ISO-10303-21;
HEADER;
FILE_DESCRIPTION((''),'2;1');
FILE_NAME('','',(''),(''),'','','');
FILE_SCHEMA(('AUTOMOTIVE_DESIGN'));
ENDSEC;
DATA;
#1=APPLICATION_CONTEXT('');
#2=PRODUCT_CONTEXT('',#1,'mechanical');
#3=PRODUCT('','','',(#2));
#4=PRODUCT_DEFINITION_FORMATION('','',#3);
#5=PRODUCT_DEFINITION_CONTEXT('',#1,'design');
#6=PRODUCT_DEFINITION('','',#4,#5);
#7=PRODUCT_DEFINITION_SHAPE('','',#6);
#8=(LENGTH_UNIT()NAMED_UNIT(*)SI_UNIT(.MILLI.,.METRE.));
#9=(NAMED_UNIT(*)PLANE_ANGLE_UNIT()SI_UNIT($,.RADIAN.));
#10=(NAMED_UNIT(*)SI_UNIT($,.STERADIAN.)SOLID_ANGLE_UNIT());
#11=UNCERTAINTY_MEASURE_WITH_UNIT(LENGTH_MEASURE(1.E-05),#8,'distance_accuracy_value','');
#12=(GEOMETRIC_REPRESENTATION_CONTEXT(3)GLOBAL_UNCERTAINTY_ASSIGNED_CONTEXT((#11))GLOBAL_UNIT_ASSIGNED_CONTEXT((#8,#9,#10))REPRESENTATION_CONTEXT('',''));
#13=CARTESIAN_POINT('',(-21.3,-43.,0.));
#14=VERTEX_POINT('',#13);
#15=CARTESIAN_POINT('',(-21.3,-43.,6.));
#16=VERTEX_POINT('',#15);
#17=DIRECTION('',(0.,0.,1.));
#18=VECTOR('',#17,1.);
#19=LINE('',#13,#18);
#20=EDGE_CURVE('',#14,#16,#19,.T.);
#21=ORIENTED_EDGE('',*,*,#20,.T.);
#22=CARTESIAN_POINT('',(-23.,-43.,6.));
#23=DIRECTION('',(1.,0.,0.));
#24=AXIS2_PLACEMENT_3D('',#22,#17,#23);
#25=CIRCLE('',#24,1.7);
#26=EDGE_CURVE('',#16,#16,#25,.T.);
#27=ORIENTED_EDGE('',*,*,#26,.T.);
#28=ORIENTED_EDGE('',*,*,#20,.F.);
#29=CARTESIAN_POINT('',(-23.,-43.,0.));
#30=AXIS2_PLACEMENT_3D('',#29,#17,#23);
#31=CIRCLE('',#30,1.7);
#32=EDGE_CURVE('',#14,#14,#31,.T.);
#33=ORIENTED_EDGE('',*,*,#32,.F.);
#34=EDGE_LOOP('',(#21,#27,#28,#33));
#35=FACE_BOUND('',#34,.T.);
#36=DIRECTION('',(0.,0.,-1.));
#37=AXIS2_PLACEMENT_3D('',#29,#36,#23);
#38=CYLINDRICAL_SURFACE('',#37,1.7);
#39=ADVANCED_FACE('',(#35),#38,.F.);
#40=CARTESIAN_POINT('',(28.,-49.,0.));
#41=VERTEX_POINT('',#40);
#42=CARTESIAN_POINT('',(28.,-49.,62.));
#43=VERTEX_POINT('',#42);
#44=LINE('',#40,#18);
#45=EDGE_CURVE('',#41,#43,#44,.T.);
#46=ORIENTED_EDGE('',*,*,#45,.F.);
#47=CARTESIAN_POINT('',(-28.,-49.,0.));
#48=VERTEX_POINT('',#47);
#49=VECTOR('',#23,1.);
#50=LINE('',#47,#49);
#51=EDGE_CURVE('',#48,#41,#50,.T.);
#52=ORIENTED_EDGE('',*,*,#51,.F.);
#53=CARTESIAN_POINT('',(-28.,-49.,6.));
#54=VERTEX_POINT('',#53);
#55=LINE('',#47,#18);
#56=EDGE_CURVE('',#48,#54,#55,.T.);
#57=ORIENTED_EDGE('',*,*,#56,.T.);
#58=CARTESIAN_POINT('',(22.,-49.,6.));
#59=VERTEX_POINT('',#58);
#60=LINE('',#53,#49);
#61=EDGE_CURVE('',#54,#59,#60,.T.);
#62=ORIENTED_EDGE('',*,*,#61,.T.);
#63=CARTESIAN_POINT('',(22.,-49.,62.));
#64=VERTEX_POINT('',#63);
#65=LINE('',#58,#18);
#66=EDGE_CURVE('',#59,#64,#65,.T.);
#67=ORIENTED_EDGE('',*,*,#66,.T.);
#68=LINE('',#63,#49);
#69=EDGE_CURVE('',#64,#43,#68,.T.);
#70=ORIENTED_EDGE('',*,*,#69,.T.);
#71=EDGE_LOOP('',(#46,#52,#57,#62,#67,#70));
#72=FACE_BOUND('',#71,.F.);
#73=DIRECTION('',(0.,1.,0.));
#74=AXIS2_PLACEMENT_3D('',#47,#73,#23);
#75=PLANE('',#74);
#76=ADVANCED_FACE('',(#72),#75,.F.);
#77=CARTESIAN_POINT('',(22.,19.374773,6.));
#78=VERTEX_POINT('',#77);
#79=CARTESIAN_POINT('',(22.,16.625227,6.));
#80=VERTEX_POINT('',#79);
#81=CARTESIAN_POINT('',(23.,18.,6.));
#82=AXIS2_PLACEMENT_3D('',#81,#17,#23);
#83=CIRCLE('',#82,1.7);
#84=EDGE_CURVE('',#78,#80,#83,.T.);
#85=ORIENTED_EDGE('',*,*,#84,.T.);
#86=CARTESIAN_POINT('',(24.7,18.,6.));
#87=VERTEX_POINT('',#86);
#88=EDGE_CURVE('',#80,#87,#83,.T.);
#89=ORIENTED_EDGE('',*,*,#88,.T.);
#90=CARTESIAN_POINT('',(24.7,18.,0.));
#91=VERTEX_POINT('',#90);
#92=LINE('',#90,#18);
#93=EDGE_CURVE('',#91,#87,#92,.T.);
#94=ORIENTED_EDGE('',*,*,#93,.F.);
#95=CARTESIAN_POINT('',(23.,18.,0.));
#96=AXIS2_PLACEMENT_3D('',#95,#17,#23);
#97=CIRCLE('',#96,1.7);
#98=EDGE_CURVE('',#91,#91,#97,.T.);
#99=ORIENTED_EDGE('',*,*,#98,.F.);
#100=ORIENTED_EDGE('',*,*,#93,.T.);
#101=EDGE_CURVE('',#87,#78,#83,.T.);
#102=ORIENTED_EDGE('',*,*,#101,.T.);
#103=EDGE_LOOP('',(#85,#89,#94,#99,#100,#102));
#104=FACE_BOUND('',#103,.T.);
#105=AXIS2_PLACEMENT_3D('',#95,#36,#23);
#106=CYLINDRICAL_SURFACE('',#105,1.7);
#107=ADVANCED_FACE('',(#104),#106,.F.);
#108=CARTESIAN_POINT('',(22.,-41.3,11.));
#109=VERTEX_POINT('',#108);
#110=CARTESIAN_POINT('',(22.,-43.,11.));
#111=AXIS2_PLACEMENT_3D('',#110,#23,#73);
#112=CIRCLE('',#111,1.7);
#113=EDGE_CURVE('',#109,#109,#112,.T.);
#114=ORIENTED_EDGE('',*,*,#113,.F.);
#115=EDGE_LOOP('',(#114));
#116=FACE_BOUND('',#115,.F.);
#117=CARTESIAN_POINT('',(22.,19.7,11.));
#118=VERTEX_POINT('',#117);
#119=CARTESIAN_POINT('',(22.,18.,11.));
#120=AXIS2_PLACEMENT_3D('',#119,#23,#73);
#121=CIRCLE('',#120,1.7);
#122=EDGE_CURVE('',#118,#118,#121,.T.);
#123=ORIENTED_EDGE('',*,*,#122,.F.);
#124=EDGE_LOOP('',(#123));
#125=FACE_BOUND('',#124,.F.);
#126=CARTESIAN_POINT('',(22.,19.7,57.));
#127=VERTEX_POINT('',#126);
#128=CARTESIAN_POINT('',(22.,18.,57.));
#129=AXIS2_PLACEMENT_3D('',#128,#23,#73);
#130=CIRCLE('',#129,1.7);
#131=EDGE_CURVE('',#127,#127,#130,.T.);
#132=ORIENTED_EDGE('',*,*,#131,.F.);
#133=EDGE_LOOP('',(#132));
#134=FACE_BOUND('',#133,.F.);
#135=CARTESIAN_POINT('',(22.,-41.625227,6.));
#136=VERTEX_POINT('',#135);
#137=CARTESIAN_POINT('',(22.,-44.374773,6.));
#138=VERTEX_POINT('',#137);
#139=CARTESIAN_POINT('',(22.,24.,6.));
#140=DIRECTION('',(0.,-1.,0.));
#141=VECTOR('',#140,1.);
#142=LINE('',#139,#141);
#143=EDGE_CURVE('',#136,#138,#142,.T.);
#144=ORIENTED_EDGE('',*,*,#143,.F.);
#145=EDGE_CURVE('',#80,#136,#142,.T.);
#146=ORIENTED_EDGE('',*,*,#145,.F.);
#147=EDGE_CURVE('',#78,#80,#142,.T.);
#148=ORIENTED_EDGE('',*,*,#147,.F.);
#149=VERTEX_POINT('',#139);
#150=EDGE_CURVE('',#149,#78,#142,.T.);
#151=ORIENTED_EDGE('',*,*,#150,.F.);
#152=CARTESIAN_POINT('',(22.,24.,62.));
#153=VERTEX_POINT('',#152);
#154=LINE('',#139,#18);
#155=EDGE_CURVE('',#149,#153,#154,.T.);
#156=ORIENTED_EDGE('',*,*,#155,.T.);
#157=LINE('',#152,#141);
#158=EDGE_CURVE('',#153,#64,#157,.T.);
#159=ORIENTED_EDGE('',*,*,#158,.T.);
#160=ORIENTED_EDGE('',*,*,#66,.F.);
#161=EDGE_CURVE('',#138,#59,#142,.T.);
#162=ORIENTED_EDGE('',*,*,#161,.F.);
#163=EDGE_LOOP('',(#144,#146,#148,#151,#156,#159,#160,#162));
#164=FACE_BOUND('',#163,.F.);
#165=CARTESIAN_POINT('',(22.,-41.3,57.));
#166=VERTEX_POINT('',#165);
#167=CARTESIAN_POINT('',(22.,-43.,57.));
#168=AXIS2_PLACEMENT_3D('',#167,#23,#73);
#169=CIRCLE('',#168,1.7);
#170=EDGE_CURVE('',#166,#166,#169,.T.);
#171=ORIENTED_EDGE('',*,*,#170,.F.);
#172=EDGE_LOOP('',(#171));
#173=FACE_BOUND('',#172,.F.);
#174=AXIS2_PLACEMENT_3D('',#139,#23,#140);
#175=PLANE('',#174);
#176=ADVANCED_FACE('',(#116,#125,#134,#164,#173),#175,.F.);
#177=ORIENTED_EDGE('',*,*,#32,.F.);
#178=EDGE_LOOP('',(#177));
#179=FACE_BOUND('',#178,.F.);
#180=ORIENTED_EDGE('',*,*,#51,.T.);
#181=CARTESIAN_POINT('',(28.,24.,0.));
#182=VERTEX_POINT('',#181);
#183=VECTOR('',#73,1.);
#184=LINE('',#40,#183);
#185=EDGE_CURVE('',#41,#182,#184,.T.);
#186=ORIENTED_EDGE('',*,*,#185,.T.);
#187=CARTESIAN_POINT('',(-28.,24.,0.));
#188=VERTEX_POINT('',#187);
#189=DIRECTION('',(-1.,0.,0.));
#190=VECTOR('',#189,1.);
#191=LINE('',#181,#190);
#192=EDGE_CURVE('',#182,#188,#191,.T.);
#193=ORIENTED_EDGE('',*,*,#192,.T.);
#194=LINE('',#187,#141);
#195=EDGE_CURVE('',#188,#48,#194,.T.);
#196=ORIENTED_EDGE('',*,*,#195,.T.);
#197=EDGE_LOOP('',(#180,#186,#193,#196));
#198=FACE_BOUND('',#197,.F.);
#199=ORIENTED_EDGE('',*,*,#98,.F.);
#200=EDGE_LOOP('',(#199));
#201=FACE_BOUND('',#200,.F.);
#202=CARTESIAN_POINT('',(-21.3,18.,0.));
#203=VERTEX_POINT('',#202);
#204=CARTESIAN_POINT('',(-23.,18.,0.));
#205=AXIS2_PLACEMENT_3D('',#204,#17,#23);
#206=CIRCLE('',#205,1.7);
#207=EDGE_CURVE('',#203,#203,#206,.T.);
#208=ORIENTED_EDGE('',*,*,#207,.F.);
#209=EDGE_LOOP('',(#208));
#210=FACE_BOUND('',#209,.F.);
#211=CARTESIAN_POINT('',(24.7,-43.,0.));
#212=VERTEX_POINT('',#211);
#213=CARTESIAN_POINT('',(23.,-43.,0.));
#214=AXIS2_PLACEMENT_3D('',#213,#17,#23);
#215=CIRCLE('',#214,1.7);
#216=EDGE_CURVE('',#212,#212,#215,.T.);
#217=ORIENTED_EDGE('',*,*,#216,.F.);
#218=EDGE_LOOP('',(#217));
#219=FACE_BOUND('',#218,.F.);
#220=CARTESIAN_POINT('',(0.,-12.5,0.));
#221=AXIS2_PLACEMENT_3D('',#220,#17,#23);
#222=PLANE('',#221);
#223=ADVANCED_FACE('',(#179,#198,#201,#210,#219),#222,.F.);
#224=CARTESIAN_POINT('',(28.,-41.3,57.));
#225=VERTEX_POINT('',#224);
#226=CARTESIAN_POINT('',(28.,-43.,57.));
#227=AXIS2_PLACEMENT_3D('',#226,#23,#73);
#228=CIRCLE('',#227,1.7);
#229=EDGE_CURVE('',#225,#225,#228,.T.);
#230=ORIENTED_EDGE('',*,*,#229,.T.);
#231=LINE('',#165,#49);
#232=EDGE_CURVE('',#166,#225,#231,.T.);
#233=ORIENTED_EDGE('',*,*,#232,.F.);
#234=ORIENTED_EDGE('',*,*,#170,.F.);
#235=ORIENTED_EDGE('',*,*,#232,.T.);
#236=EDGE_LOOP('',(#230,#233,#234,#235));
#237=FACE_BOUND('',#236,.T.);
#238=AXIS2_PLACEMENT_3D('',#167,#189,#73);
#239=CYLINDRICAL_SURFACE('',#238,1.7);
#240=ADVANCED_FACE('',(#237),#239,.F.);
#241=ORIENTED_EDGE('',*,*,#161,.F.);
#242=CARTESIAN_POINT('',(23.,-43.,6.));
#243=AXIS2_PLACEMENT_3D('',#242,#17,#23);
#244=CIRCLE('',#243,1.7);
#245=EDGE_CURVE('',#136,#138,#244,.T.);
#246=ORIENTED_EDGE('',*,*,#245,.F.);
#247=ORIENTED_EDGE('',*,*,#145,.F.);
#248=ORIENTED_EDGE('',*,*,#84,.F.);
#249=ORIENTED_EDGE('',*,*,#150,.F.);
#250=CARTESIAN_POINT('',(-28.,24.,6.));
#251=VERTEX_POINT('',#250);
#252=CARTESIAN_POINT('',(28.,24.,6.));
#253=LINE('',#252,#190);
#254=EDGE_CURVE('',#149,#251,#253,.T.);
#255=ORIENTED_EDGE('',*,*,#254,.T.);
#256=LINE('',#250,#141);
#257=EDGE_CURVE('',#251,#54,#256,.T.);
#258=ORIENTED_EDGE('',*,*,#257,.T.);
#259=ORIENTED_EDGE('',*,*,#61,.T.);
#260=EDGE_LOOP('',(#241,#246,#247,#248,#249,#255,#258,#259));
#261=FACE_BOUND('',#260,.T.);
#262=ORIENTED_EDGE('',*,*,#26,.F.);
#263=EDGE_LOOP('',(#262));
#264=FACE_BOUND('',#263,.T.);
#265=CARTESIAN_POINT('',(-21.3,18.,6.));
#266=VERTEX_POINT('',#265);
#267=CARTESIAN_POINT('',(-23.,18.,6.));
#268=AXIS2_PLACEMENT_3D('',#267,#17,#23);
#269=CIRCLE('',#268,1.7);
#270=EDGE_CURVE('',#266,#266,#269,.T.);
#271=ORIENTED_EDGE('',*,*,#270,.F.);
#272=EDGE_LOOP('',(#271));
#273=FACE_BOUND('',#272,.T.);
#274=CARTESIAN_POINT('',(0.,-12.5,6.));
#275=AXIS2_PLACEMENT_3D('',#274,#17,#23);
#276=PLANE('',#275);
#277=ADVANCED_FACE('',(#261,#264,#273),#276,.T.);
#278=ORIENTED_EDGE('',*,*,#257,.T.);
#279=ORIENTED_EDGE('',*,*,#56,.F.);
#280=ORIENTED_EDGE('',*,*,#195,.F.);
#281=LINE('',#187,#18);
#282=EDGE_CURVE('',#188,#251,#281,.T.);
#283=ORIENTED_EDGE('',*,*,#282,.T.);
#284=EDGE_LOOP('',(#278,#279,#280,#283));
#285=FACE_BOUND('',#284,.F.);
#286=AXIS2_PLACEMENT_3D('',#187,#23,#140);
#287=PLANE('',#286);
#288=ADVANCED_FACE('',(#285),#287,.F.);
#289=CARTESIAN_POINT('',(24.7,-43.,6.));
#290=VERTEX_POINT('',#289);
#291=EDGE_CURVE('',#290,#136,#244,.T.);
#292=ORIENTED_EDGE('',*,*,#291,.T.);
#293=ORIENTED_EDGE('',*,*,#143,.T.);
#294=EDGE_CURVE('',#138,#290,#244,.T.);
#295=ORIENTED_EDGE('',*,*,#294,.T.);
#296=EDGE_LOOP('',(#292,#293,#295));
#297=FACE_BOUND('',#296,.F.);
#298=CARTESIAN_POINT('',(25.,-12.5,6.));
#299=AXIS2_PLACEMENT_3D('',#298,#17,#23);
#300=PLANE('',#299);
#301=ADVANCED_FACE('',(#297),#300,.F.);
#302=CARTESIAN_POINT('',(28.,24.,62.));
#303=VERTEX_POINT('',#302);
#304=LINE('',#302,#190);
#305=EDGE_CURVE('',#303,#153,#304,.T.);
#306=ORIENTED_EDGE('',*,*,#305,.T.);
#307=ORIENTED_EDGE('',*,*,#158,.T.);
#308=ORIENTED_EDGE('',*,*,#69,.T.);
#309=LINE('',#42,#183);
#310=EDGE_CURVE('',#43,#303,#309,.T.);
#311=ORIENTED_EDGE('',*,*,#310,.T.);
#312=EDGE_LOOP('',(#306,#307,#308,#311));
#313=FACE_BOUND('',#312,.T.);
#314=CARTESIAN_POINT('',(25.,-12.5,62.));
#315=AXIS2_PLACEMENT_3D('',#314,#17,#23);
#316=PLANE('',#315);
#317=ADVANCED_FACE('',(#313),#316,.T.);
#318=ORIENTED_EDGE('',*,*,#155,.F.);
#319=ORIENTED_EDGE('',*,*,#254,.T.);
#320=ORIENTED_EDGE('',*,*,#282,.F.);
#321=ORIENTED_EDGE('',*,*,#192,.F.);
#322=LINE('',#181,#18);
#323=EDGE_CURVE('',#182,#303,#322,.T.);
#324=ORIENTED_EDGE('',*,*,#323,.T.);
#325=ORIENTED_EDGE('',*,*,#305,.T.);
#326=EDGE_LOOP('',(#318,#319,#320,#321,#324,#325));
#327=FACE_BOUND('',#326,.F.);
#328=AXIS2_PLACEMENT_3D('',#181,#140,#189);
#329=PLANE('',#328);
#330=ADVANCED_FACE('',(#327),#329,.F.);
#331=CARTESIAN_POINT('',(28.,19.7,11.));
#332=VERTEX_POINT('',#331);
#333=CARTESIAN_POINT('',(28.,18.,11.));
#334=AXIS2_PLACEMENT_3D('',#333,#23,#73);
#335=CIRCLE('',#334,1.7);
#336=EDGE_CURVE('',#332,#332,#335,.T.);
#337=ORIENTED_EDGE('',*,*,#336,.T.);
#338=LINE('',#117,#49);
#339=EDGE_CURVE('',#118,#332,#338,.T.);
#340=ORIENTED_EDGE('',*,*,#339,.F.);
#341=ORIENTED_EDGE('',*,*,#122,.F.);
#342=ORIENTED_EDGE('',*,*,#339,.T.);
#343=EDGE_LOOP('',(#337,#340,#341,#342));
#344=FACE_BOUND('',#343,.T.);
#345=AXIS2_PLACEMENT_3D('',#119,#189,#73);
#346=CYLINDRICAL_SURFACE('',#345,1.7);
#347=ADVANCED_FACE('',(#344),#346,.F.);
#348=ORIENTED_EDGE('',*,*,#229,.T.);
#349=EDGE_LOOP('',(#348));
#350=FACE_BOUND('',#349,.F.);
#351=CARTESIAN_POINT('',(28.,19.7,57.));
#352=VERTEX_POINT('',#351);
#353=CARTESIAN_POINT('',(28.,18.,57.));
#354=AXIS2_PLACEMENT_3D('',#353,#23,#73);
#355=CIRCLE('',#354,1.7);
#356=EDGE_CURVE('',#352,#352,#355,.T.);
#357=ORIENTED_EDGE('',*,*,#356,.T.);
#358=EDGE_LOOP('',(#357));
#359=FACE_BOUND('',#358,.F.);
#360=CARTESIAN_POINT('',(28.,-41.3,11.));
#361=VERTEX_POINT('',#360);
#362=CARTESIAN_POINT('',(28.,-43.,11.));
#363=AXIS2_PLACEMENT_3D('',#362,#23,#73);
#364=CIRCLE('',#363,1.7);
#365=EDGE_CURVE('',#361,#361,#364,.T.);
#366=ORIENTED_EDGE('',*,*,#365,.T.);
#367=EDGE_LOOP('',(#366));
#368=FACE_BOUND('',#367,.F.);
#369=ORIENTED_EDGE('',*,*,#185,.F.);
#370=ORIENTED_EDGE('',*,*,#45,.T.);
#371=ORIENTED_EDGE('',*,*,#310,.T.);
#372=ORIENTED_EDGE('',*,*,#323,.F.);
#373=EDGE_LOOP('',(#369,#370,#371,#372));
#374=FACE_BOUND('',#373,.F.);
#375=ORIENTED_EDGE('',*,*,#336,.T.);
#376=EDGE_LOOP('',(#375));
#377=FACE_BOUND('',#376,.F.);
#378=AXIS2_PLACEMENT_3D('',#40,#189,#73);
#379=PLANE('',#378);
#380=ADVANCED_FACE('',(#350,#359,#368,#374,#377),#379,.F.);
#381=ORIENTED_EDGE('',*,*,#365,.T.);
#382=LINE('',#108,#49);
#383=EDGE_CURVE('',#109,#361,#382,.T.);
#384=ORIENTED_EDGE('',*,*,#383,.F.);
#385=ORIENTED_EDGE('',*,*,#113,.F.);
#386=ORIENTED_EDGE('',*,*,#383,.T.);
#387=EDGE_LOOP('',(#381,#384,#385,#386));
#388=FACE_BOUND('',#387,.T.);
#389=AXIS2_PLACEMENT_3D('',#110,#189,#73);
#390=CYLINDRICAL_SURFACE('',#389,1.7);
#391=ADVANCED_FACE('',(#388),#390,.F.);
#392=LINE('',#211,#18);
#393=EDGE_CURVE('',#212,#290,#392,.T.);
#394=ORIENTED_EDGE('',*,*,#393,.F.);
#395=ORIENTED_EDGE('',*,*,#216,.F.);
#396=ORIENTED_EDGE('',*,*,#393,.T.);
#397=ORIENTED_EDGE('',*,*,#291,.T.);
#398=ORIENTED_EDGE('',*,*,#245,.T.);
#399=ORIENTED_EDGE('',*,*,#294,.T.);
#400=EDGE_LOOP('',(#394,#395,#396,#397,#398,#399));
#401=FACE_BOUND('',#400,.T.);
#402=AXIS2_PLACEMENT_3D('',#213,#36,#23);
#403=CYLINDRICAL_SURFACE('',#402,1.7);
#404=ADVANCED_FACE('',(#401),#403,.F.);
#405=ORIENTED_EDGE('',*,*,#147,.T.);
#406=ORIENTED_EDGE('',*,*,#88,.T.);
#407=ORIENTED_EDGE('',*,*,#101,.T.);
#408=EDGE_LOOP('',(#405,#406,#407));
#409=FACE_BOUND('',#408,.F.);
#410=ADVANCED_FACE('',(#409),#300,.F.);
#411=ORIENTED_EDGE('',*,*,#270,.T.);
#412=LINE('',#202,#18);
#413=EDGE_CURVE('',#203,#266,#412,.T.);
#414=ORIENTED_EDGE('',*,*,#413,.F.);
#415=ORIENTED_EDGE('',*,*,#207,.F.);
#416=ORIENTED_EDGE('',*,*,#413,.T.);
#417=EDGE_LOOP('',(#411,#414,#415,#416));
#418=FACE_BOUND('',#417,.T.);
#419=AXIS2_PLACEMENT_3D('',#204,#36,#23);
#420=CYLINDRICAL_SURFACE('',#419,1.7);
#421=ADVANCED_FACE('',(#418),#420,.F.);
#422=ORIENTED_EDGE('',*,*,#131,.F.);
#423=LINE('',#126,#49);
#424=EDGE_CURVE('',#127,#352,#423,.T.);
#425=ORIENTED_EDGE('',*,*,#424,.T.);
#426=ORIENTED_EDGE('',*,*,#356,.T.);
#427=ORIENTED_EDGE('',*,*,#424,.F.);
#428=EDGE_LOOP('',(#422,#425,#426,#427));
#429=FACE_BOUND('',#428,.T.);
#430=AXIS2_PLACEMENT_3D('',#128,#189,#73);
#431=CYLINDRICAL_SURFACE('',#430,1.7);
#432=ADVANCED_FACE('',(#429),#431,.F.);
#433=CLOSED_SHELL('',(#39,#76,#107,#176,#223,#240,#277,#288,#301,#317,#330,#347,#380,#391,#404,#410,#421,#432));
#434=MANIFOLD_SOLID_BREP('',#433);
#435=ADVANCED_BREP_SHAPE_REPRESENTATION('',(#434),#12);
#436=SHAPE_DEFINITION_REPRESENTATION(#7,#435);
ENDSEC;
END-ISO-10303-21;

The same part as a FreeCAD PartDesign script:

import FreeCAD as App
import Part
import Sketcher

V = App.Vector
Q = App.Units.Quantity


def add_polygon(sketch, points):
    """Adds a closed chain of lines whose ends are joined by coincident constraints."""
    first, n = sketch.GeometryCount, len(points)
    for a, b in zip(points, points[1:] + points[:1]):
        sketch.addGeometry(Part.LineSegment(App.Vector(*a, 0), App.Vector(*b, 0)), False)
    for i in range(n):
        sketch.addConstraint(Sketcher.Constraint("Coincident", first + i, 2, first + (i + 1) % n, 1))

doc = App.newDocument("Part")
body = doc.addObject("PartDesign::Body", "Body")

# Sketch on XY plane
sketch1 = doc.addObject("Sketcher::SketchObject", "Sketch")
body.addObject(sketch1)
sketch1.AttachmentSupport = (doc.XY_Plane, [""])
sketch1.MapMode = "FlatFace"
add_polygon(sketch1, [(-28, 24), (-28, -49), (28, -49), (28, 24)])  # lines 0-3
sketch1.addGeometry(Part.Circle(V(-23, -43, 0), V(0, 0, 1), 1.7), False)  # 4
sketch1.addGeometry(Part.Circle(V(23, -43, 0), V(0, 0, 1), 1.7), False)  # 5
sketch1.addGeometry(Part.Circle(V(-23, 18, 0), V(0, 0, 1), 1.7), False)  # 6
sketch1.addGeometry(Part.Circle(V(23, 18, 0), V(0, 0, 1), 1.7), False)  # 7
sketch1.addConstraint([
    Sketcher.Constraint("Vertical", 0),
    Sketcher.Constraint("Horizontal", 1),
    Sketcher.Constraint("Vertical", 2),
    Sketcher.Constraint("Horizontal", 3),
    Sketcher.Constraint("Equal", 4, 5),
    Sketcher.Constraint("Equal", 5, 6),
    Sketcher.Constraint("Equal", 6, 7),
    Sketcher.Constraint("Symmetric", 4, 3, 5, 3, -2),
    Sketcher.Constraint("Symmetric", 6, 3, 7, 3, -2),
    Sketcher.Constraint("Vertical", 4, 3, 6, 3),
    Sketcher.Constraint("Diameter", 4, Q("3.4 mm")),
    Sketcher.Constraint("DistanceX", 1, 1, 1, 2, Q("56 mm")),
    Sketcher.Constraint("DistanceY", 0, 2, 0, 1, Q("73 mm")),
    Sketcher.Constraint("DistanceX", 4, 3, -1, 1, Q("23 mm")),
    Sketcher.Constraint("DistanceY", 4, 3, -1, 1, Q("43 mm")),
    Sketcher.Constraint("DistanceY", -1, 1, 6, 3, Q("18 mm")),
    Sketcher.Constraint("DistanceX", 0, 2, -1, 1, Q("28 mm")),
    Sketcher.Constraint("DistanceY", 0, 2, -1, 1, Q("49 mm")),
])
pad1 = doc.addObject("PartDesign::Pad", "Pad")
body.addObject(pad1)
pad1.Profile = sketch1
pad1.Length = 6

# Sketch on XY plane
sketch2 = doc.addObject("Sketcher::SketchObject", "Sketch001")
body.addObject(sketch2)
sketch2.AttachmentSupport = (doc.XY_Plane, [""])
sketch2.MapMode = "FlatFace"
sketch2.AttachmentOffset = App.Placement(V(0, 0, 6), App.Rotation())
add_polygon(sketch2, [(22, 24), (22, -49), (28, -49), (28, 24)])  # lines 0-3
sketch2.addConstraint([
    Sketcher.Constraint("Vertical", 0),
    Sketcher.Constraint("Horizontal", 1),
    Sketcher.Constraint("Vertical", 2),
    Sketcher.Constraint("Horizontal", 3),
    Sketcher.Constraint("DistanceX", 1, 1, 1, 2, Q("6 mm")),
    Sketcher.Constraint("DistanceY", 0, 2, 0, 1, Q("73 mm")),
    Sketcher.Constraint("DistanceX", -1, 1, 0, 2, Q("22 mm")),
    Sketcher.Constraint("DistanceY", 0, 2, -1, 1, Q("49 mm")),
])
pad2 = doc.addObject("PartDesign::Pad", "Pad001")
body.addObject(pad2)
pad2.Profile = sketch2
pad2.Length = 56

# Sketch on YZ plane
sketch3 = doc.addObject("Sketcher::SketchObject", "Sketch002")
body.addObject(sketch3)
sketch3.AttachmentSupport = (doc.YZ_Plane, [""])
sketch3.MapMode = "FlatFace"
sketch3.AttachmentOffset = App.Placement(V(0, 0, 22), App.Rotation())
sketch3.addGeometry([
    Part.Circle(V(-43, 57, 0), V(0, 0, 1), 1.7),
    Part.Circle(V(-43, 11, 0), V(0, 0, 1), 1.7),
    Part.Circle(V(18, 57, 0), V(0, 0, 1), 1.7),
    Part.Circle(V(18, 11, 0), V(0, 0, 1), 1.7),
], False)
sketch3.addConstraint([
    Sketcher.Constraint("Equal", 0, 1),
    Sketcher.Constraint("Equal", 1, 2),
    Sketcher.Constraint("Equal", 2, 3),
    Sketcher.Constraint("Horizontal", 0, 3, 2, 3),
    Sketcher.Constraint("Horizontal", 1, 3, 3, 3),
    Sketcher.Constraint("Vertical", 0, 3, 1, 3),
    Sketcher.Constraint("Vertical", 2, 3, 3, 3),
    Sketcher.Constraint("Diameter", 0, Q("3.4 mm")),
    Sketcher.Constraint("DistanceX", 0, 3, -1, 1, Q("43 mm")),
    Sketcher.Constraint("DistanceY", -1, 1, 0, 3, Q("57 mm")),
    Sketcher.Constraint("DistanceY", -1, 1, 1, 3, Q("11 mm")),
    Sketcher.Constraint("DistanceX", -1, 1, 2, 3, Q("18 mm")),
])
pocket1 = doc.addObject("PartDesign::Pocket", "Pocket")
body.addObject(pocket1)
pocket1.Profile = sketch3
pocket1.Length = 6
pocket1.Reversed = True

doc.recompute()
